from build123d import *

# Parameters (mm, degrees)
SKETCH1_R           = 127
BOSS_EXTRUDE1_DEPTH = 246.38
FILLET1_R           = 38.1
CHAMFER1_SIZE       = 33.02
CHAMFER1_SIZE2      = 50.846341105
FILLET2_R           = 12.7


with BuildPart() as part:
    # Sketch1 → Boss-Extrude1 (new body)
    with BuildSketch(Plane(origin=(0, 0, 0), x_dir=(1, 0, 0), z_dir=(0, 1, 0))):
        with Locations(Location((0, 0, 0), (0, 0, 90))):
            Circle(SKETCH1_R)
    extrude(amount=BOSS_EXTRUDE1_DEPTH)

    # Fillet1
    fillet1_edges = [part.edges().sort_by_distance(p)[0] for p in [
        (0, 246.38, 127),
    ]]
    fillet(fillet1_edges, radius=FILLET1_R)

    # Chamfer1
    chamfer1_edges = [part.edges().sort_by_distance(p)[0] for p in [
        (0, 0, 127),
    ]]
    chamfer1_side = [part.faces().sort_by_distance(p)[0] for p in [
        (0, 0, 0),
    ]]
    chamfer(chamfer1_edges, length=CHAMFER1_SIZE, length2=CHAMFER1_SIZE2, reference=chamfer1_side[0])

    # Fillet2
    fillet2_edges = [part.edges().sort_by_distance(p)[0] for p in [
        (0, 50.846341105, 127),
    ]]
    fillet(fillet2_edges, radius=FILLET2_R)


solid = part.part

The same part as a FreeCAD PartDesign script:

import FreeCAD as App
import Part
import Sketcher
from FreeCAD import Vector
Q = App.Units.Quantity


def edges_at(feature, points):
    """Names of the edges that pass closest to the given points."""
    edges = feature.Shape.Edges
    near = lambda p: min(range(len(edges)), key=lambda i: edges[i].distToShape(Part.Vertex(*p))[0])
    return sorted({f"Edge{near(p) + 1}" for p in points})

doc = App.newDocument("Part")
body = doc.addObject("PartDesign::Body", "Body")

# Sketch on XZ plane
sketch1 = doc.addObject("Sketcher::SketchObject", "Sketch")
body.addObject(sketch1)
sketch1.AttachmentSupport = (doc.XZ_Plane, [""])
sketch1.MapMode = "FlatFace"
sketch1.addGeometry(Part.Circle(Vector(0, 0, 0), Vector(0, 0, 1), 127), False)
sketch1.addConstraint([
    Sketcher.Constraint("Coincident", 0, 3, -1, 1),
    Sketcher.Constraint("Diameter", 0, Q("10 in")),
])
pad1 = doc.addObject("PartDesign::Pad", "Pad")
body.addObject(pad1)
pad1.Profile = sketch1
pad1.Length = Q("9.7 in")
pad1.Reversed = True
doc.recompute()

fillet = doc.addObject("PartDesign::Fillet", "Fillet")
body.addObject(fillet)
fillet.Base = (pad1, edges_at(pad1, [(0, 246.38, 127)]))
fillet.Radius = Q("1.5 in")
doc.recompute()

chamfer = doc.addObject("PartDesign::Chamfer", "Chamfer")
body.addObject(chamfer)
chamfer.Base = (fillet, edges_at(fillet, [(0, 0, 127)]))
chamfer.ChamferType = "Two distances"
chamfer.Size = Q("1.3 in")
chamfer.Size2 = 50.846341
chamfer.FlipDirection = True
doc.recompute()

fillet2 = doc.addObject("PartDesign::Fillet", "Fillet001")
body.addObject(fillet2)
fillet2.Base = (chamfer, edges_at(chamfer, [(0, 50.846, 127)]))
fillet2.Radius = Q("0.5 in")

doc.recompute()
